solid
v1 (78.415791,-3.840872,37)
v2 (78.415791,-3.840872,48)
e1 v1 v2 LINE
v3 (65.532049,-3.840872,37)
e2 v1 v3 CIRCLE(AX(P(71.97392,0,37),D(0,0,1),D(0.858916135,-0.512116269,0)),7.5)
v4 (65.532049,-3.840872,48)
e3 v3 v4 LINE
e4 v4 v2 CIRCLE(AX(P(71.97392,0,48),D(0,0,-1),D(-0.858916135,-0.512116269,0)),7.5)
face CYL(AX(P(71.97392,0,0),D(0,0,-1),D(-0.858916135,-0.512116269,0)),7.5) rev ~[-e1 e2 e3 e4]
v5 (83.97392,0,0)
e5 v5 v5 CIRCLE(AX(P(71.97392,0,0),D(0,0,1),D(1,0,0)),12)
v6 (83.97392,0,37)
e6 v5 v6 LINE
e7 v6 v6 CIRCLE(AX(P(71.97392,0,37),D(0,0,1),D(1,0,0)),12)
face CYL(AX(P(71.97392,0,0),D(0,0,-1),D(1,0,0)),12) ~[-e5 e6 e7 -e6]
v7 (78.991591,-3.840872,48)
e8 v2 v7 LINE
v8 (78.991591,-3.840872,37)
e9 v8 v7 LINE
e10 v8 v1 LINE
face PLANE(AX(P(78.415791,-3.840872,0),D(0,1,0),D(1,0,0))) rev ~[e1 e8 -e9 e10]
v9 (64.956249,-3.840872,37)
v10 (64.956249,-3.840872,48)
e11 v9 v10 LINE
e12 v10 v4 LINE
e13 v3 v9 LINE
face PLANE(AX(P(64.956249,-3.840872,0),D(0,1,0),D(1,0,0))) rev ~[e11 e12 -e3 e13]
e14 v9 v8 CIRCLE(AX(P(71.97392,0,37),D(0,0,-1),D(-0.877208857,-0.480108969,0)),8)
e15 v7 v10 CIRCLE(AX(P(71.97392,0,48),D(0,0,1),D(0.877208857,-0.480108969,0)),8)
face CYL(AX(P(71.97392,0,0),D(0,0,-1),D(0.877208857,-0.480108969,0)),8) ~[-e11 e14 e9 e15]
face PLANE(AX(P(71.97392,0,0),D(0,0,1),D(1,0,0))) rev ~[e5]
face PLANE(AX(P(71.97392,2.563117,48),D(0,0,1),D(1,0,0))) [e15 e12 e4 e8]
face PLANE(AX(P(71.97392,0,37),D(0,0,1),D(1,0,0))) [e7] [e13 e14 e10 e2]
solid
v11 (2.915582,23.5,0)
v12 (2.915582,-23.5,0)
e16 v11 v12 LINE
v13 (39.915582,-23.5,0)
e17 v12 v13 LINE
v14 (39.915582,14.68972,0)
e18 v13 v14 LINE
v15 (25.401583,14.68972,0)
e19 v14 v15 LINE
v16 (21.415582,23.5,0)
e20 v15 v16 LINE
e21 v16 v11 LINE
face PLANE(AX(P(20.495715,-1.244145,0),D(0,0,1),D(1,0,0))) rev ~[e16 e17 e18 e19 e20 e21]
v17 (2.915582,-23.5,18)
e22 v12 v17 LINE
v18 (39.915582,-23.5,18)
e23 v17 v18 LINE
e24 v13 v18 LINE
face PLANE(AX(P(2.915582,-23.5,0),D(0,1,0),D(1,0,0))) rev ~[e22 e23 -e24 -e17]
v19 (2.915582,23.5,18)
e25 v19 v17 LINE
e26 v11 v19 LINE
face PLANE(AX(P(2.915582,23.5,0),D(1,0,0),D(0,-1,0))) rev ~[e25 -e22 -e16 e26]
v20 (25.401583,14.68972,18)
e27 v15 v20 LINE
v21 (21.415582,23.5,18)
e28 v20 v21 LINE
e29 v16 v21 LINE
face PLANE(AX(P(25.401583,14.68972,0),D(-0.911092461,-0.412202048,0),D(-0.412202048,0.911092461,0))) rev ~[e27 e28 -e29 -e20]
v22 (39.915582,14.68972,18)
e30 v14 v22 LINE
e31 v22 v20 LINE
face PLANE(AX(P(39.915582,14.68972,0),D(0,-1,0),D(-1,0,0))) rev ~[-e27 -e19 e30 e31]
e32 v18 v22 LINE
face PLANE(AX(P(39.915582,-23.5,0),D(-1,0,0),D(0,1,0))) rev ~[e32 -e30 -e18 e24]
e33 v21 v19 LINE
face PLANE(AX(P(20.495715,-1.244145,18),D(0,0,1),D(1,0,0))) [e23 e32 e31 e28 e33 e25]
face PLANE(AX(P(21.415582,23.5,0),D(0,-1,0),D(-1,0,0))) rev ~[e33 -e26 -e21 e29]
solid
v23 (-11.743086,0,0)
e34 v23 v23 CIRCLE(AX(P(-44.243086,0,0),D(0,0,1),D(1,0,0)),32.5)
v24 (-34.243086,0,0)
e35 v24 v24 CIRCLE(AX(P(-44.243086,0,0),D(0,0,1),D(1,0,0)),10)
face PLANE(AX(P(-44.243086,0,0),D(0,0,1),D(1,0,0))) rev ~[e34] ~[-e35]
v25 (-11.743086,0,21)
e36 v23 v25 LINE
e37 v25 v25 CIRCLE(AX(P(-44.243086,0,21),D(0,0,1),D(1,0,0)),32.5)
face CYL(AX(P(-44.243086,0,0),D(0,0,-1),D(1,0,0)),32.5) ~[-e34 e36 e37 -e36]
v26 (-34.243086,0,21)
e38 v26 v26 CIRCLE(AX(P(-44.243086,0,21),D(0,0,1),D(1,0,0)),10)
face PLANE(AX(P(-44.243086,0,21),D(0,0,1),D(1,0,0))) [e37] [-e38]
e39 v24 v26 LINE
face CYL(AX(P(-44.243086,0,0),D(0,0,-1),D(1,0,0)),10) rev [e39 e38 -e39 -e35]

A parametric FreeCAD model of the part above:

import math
import FreeCAD as App
import Part
import Sketcher
from FreeCAD import Vector


def add_polygon(sketch, points):
    """Adds a closed chain of lines whose ends are joined by coincident constraints."""
    first, n = sketch.GeometryCount, len(points)
    for a, b in zip(points, points[1:] + points[:1]):
        sketch.addGeometry(Part.LineSegment(App.Vector(*a, 0), App.Vector(*b, 0)), False)
    for i in range(n):
        sketch.addConstraint(Sketcher.Constraint("Coincident", first + i, 2, first + (i + 1) % n, 1))

doc = App.newDocument("Part")
body = doc.addObject("PartDesign::Body", "Body")

sketch1 = body.newObject("Sketcher::SketchObject", "Sketch")
sketch1.AttachmentSupport = (doc.getObject("XY_Plane"), [""])
sketch1.MapMode = "FlatFace"
sketch1.addGeometry([
    Part.Circle(Vector(-44.243086, 0, 0), Vector(0, 0, 1), 32.5),
    Part.Circle(Vector(-44.243086, 0, 0), Vector(0, 0, 1), 10),
], False)
sketch1.addConstraint([
    Sketcher.Constraint("Coincident", 1, 3, 0, 3),
    Sketcher.Constraint("PointOnObject", 0, 3, -1),
    Sketcher.Constraint("Diameter", 0, 65.0),
    Sketcher.Constraint("Diameter", 1, 20.0),
    Sketcher.Constraint("DistanceX", 0, 3, -1, 1, 44.243086),
])
pad1 = body.newObject("PartDesign::Pad", "Pad")
pad1.Profile = sketch1
pad1.Length = 21
body2 = doc.addObject("PartDesign::Body", "Body001")

sketch2 = body2.newObject("Sketcher::SketchObject", "Sketch001")
sketch2.AttachmentSupport = (doc.getObject("XY_Plane001"), [""])
sketch2.MapMode = "FlatFace"
add_polygon(sketch2, [(2.915582, -23.5), (39.915582, -23.5), (39.915582, 14.68972), (25.401583, 14.68972), (21.415582, 23.5), (2.915582, 23.5)])
sketch2.addConstraint([
    Sketcher.Constraint("Horizontal", 0),
    Sketcher.Constraint("Vertical", 1),
    Sketcher.Constraint("Horizontal", 2),
    Sketcher.Constraint("Horizontal", 4),
    Sketcher.Constraint("Vertical", 5),
    Sketcher.Constraint("DistanceX", 0, 1, 0, 2, 37.0),
    Sketcher.Constraint("DistanceY", 5, 2, 5, 1, 47.0),
    Sketcher.Constraint("DistanceX", 4, 2, 4, 1, 18.5),
    Sketcher.Constraint("DistanceY", 0, 2, -1, 1, 23.5),
    Sketcher.Constraint("DistanceX", 2, 2, 2, 1, 14.513999),
    Sketcher.Constraint("DistanceY", 1, 1, 1, 2, 38.18972),
    Sketcher.Constraint("DistanceX", -1, 1, 0, 2, 39.915582),
])
pad2 = body2.newObject("PartDesign::Pad", "Pad001")
pad2.Profile = sketch2
pad2.Length = 18
body3 = doc.addObject("PartDesign::Body", "Body002")

sketch3 = body3.newObject("Sketcher::SketchObject", "Sketch002")
sketch3.AttachmentSupport = (doc.getObject("XY_Plane002"), [""])
sketch3.MapMode = "FlatFace"
sketch3.addGeometry([
    Part.Circle(Vector(71.97392, 0, 0), Vector(0, 0, 1), 12),
    Part.LineSegment(Vector(65.532049, -3.840872, 0), Vector(64.956249, -3.840872, 0)),
    Part.ArcOfCircle(Part.Circle(Vector(71.97392, 0, 0), Vector(0, 0, 1), 8), math.radians(-28.692519), math.radians(208.692519)),
    Part.LineSegment(Vector(78.991591, -3.840872, 0), Vector(78.415791, -3.840872, 0)),
    Part.ArcOfCircle(Part.Circle(Vector(71.97392, 0, 0), Vector(0, 0, 1), 7.5), math.radians(-30.804896), math.radians(210.804896)),
], False)
sketch3.addConstraint([
    Sketcher.Constraint("Coincident", 1, 2, 2, 2),
    Sketcher.Constraint("Coincident", 2, 1, 3, 1),
    Sketcher.Constraint("Coincident", 3, 2, 4, 1),
    Sketcher.Constraint("Coincident", 4, 2, 1, 1),
    Sketcher.Constraint("Horizontal", 1),
    Sketcher.Constraint("Horizontal", 3),
    Sketcher.Constraint("Coincident", 2, 3, 0, 3),
    Sketcher.Constraint("Coincident", 4, 3, 0, 3),
    Sketcher.Constraint("PointOnObject", 0, 3, -1),
    Sketcher.Constraint("Horizontal", 1, 2, 2, 1),
    Sketcher.Constraint("Diameter", 0, 24.0),
    Sketcher.Constraint("Radius", 2, 8.0),
    Sketcher.Constraint("Radius", 4, 7.5),
    Sketcher.Constraint("DistanceX", 1, 2, 1, 1, 0.5758),
    Sketcher.Constraint("DistanceX", -1, 1, 0, 3, 71.97392),
])
pad3 = body3.newObject("PartDesign::Pad", "Pad002")
pad3.Profile = sketch3
pad3.Length = 37

sketch4 = body3.newObject("Sketcher::SketchObject", "Sketch003")
sketch4.AttachmentSupport = (doc.getObject("XY_Plane002"), [""])
sketch4.MapMode = "FlatFace"
sketch4.addGeometry([
    Part.LineSegment(Vector(78.415791, -3.840872, 0), Vector(78.991591, -3.840872, 0)),
    Part.ArcOfCircle(Part.Circle(Vector(71.97392, 0, 0), Vector(0, 0, 1), 8), math.radians(-28.692519), math.radians(208.692519)),
    Part.LineSegment(Vector(64.956249, -3.840872, 0), Vector(65.532049, -3.840872, 0)),
    Part.ArcOfCircle(Part.Circle(Vector(71.97392, 0, 0), Vector(0, 0, 1), 7.5), math.radians(-30.804896), math.radians(210.804896)),
], False)
sketch4.addConstraint([
    Sketcher.Constraint("Coincident", 0, 2, 1, 1),
    Sketcher.Constraint("Coincident", 1, 2, 2, 1),
    Sketcher.Constraint("Coincident", 2, 2, 3, 2),
    Sketcher.Constraint("Coincident", 3, 1, 0, 1),
    Sketcher.Constraint("Horizontal", 0),
    Sketcher.Constraint("Horizontal", 2),
    Sketcher.Constraint("Coincident", 3, 3, 1, 3),
    Sketcher.Constraint("PointOnObject", 1, 3, -1),
    Sketcher.Constraint("Horizontal", 0, 2, 1, 2),
    Sketcher.Constraint("Radius", 1, 8.0),
    Sketcher.Constraint("Radius", 3, 7.5),
    Sketcher.Constraint("DistanceX", 0, 1, 0, 2, 0.5758),
    Sketcher.Constraint("DistanceX", -1, 1, 1, 3, 71.97392),
])
pad4 = body3.newObject("PartDesign::Pad", "Pad003")
pad4.Profile = sketch4
pad4.Length = 48

doc.recompute()
